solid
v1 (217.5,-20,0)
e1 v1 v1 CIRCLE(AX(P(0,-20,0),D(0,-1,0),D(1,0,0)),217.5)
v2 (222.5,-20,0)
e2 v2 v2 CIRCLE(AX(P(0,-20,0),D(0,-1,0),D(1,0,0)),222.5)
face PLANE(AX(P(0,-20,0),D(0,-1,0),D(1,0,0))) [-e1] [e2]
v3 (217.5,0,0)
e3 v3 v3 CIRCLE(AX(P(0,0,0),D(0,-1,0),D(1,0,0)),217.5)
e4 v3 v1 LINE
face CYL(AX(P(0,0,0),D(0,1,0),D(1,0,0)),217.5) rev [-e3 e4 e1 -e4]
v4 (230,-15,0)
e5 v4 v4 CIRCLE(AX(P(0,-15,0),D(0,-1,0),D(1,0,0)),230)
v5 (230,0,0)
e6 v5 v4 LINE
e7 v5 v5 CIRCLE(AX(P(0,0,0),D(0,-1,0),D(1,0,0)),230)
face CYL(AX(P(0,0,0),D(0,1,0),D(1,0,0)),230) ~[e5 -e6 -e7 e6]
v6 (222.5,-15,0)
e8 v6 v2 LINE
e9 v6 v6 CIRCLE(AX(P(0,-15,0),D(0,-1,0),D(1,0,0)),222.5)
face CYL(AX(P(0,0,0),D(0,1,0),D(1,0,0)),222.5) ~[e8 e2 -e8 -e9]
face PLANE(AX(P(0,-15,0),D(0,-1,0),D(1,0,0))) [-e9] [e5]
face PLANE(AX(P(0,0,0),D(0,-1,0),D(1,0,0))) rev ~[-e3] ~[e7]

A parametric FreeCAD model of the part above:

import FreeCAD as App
import Part
import Sketcher

V = App.Vector
Q = App.Units.Quantity

doc = App.newDocument("Part")
params = doc.addObject("Spreadsheet::Sheet", "Params")
for row, (alias, value) in enumerate([
    ("sketch1_diameter", "445 mm"),
    ("sketch1_diameter2", "435 mm"),
    ("pad1_length", "20 mm"),
    ("sketch2_diameter", "460 mm"),
    ("sketch2_diameter2", "445 mm"),
    ("pad2_length", "15 mm"),
], start=1):
    params.set(f"A{row}", alias)
    params.set(f"B{row}", "=" + value)
    params.setAlias(f"B{row}", alias)

body = doc.addObject("PartDesign::Body", "Body")

# Sketch on XZ plane
sketch1 = doc.addObject("Sketcher::SketchObject", "Sketch")
body.addObject(sketch1)
sketch1.AttachmentSupport = (doc.XZ_Plane, [""])
sketch1.MapMode = "FlatFace"
sketch1.addGeometry([
    Part.Circle(V(0, 0, 0), V(0, 0, 1), 222.5),
    Part.Circle(V(0, 0, 0), V(0, 0, 1), 217.5),
], False)
sketch1.addConstraint([
    Sketcher.Constraint("Coincident", 0, 3, -1, 1),
    Sketcher.Constraint("Coincident", 1, 3, -1, 1),
    Sketcher.Constraint("Diameter", 0, Q("445 mm")),
    Sketcher.Constraint("Diameter", 1, Q("435 mm")),
])
sketch1.setExpression("Constraints[2]", "Params.sketch1_diameter")
sketch1.setExpression("Constraints[3]", "Params.sketch1_diameter2")
pad1 = doc.addObject("PartDesign::Pad", "Pad")
body.addObject(pad1)
pad1.Profile = sketch1
pad1.setExpression("Length", "Params.pad1_length")

# Sketch on XZ plane
sketch2 = doc.addObject("Sketcher::SketchObject", "Sketch001")
body.addObject(sketch2)
sketch2.AttachmentSupport = (doc.XZ_Plane, [""])
sketch2.MapMode = "FlatFace"
sketch2.addGeometry([
    Part.Circle(V(0, 0, 0), V(0, 0, 1), 230),
    Part.Circle(V(0, 0, 0), V(0, 0, 1), 222.5),
], False)
sketch2.addConstraint([
    Sketcher.Constraint("Coincident", 0, 3, -1, 1),
    Sketcher.Constraint("Coincident", 1, 3, -1, 1),
    Sketcher.Constraint("Diameter", 0, Q("460 mm")),
    Sketcher.Constraint("Diameter", 1, Q("445 mm")),
])
sketch2.setExpression("Constraints[2]", "Params.sketch2_diameter")
sketch2.setExpression("Constraints[3]", "Params.sketch2_diameter2")
pad2 = doc.addObject("PartDesign::Pad", "Pad001")
body.addObject(pad2)
pad2.Profile = sketch2
pad2.setExpression("Length", "Params.pad2_length")

doc.recompute()
